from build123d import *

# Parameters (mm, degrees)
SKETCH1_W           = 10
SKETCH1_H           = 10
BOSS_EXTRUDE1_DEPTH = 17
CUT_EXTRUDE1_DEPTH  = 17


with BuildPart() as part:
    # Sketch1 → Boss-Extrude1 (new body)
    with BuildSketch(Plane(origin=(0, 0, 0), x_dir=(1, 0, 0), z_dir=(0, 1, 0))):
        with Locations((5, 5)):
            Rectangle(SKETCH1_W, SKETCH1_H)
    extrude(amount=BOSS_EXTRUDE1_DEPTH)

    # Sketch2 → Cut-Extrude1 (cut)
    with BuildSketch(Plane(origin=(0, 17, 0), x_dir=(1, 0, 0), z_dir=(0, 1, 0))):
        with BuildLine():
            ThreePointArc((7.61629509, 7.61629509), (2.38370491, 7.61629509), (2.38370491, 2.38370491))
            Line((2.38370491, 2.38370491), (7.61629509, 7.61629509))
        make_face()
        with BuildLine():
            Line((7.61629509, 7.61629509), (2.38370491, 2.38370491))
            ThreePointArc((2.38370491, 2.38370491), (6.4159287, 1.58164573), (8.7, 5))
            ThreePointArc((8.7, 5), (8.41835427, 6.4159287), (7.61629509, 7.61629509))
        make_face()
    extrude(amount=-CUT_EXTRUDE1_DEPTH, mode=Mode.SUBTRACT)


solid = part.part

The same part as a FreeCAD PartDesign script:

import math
import FreeCAD as App
import Part
import Sketcher
from FreeCAD import Vector
Q = App.Units.Quantity


def add_polygon(sketch, points):
    """Adds a closed chain of lines whose ends are joined by coincident constraints."""
    first, n = sketch.GeometryCount, len(points)
    for a, b in zip(points, points[1:] + points[:1]):
        sketch.addGeometry(Part.LineSegment(App.Vector(*a, 0), App.Vector(*b, 0)), False)
    for i in range(n):
        sketch.addConstraint(Sketcher.Constraint("Coincident", first + i, 2, first + (i + 1) % n, 1))

doc = App.newDocument("Part")
body = doc.addObject("PartDesign::Body", "Body")

# Sketch on XZ plane
sketch1 = body.newObject("Sketcher::SketchObject", "Sketch")
sketch1.AttachmentSupport = (doc.getObject("XZ_Plane"), [""])
sketch1.MapMode = "FlatFace"
add_polygon(sketch1, [(0, -10), (0, 0), (10, 0), (10, -10)])  # lines 0-3
sketch1.addConstraint([
    Sketcher.Constraint("Vertical", 0),
    Sketcher.Constraint("Horizontal", 1),
    Sketcher.Constraint("Vertical", 2),
    Sketcher.Constraint("Horizontal", 3),
    Sketcher.Constraint("Coincident", 0, 2, -1, 1),
    Sketcher.Constraint("Equal", 3, 0),
    Sketcher.Constraint("DistanceX", 1, 1, 1, 2, Q("10 mm")),
])
pad1 = body.newObject("PartDesign::Pad", "Pad")
pad1.Profile = sketch1
pad1.Length = 17
pad1.Reversed = True

# Sketch on XZ plane
sketch2 = body.newObject("Sketcher::SketchObject", "Sketch001")
sketch2.AttachmentSupport = (doc.getObject("XZ_Plane"), [""])
sketch2.MapMode = "FlatFace"
sketch2.AttachmentOffset = App.Placement(Vector(0, 0, -17), App.Rotation())
sketch2.addGeometry([
    Part.ArcOfCircle(Part.Circle(Vector(5, -5, 0), Vector(0, 0, 1), 3.7), math.radians(135), math.radians(315)),
    Part.ArcOfCircle(Part.Circle(Vector(5, -5, 0), Vector(0, 0, 1), 3.7), math.radians(0), math.radians(135)),
    Part.ArcOfCircle(Part.Circle(Vector(5, -5, 0), Vector(0, 0, 1), 3.7), math.radians(-45), math.radians(0)),
], False)
sketch2.addConstraint([
    Sketcher.Constraint("Tangent", 0, 1, 1, 2),
    Sketcher.Constraint("Tangent", 1, 1, 2, 2),
    Sketcher.Constraint("Tangent", 2, 1, 0, 2),
    Sketcher.Constraint("Horizontal", 2, 3, 1, 1),
    Sketcher.Constraint("Radius", 0, Q("3.7 mm")),
    Sketcher.Constraint("DistanceX", -1, 1, 0, 3, Q("5 mm")),
    Sketcher.Constraint("DistanceY", 0, 3, -1, 1, Q("5 mm")),
    Sketcher.Constraint("DistanceX", 0, 1, 2, 1, Q("5.23259 mm")),
    Sketcher.Constraint("DistanceX", -1, 1, 0, 1, Q("2.383705 mm")),
])
pocket1 = body.newObject("PartDesign::Pocket", "Pocket")
pocket1.Profile = sketch2
pocket1.Length = 17
pocket1.Reversed = True

doc.recompute()
